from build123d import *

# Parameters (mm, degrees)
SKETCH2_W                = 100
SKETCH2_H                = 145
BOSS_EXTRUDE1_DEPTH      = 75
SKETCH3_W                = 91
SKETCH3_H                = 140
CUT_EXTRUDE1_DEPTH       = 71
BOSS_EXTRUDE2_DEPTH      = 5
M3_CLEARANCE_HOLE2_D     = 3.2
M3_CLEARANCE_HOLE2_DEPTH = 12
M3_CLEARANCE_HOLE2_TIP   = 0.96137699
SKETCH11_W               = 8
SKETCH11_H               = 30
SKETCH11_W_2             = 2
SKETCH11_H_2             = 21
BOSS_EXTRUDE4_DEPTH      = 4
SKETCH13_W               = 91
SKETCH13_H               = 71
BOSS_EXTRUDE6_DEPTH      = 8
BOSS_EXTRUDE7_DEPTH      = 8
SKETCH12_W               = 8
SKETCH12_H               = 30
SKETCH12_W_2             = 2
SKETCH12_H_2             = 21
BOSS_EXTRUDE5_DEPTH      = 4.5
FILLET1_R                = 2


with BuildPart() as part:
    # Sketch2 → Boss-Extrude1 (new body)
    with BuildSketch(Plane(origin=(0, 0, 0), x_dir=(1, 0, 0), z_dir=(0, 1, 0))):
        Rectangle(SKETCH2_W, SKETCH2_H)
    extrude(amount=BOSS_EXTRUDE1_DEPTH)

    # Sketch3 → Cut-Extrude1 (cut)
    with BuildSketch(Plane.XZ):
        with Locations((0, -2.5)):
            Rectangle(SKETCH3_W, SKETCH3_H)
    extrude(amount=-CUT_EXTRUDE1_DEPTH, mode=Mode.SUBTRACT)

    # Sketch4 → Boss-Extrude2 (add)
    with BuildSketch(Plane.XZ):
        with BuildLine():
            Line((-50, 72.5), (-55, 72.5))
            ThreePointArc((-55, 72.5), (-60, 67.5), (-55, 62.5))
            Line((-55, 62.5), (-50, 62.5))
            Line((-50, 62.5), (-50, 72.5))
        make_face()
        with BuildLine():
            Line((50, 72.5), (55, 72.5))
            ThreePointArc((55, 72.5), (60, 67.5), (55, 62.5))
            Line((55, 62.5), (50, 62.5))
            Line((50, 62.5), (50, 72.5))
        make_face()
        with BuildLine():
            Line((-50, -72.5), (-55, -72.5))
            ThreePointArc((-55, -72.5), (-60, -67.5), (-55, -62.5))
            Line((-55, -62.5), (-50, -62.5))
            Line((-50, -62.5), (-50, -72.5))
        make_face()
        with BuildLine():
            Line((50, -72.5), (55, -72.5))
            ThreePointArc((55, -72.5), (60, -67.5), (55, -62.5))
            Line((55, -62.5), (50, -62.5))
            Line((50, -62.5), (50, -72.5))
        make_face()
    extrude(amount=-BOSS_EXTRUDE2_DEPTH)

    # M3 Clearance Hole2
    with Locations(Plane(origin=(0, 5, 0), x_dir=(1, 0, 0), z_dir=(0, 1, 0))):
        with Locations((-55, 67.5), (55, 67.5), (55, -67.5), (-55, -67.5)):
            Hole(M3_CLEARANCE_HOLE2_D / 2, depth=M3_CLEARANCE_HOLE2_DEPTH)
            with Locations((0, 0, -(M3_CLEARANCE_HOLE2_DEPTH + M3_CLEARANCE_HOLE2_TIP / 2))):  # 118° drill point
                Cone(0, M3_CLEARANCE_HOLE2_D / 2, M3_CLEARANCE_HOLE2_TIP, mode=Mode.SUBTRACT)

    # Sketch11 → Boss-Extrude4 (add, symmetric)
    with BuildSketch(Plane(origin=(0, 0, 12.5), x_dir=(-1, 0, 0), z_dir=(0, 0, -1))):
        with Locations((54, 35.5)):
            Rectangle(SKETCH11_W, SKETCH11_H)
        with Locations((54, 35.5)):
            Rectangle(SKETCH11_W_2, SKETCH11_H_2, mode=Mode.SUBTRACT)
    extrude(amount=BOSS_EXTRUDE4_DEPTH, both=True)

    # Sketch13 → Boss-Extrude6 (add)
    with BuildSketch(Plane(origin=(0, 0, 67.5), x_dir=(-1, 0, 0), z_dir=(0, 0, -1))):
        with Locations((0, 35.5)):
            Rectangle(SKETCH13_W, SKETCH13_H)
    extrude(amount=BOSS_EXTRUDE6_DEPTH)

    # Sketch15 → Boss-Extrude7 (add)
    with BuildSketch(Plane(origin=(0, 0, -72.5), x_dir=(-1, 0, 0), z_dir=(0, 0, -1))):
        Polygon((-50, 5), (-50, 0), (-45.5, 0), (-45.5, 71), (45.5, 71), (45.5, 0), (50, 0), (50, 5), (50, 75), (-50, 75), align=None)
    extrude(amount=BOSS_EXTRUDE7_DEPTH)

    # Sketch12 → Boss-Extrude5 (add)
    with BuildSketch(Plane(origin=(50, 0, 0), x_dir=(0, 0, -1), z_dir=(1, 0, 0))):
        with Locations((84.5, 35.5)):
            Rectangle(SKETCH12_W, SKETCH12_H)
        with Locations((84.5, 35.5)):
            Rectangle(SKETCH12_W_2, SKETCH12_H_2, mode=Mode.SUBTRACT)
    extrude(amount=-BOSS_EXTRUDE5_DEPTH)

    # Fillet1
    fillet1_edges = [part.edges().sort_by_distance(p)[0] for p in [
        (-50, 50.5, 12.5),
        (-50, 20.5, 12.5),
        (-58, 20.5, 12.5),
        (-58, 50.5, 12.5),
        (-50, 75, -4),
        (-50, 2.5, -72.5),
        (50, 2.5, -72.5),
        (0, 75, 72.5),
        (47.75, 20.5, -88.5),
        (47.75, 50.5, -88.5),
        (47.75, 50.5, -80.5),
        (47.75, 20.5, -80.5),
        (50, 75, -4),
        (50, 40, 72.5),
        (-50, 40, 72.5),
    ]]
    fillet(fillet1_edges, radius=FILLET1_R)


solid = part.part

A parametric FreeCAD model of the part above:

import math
import FreeCAD as App
import Part
import Sketcher
from FreeCAD import Vector
Q = App.Units.Quantity


def edges_at(feature, points):
    """Names of the edges that pass closest to the given points."""
    edges = feature.Shape.Edges
    near = lambda p: min(range(len(edges)), key=lambda i: edges[i].distToShape(Part.Vertex(*p))[0])
    return sorted({f"Edge{near(p) + 1}" for p in points})


def add_polygon(sketch, points):
    """Adds a closed chain of lines whose ends are joined by coincident constraints."""
    first, n = sketch.GeometryCount, len(points)
    for a, b in zip(points, points[1:] + points[:1]):
        sketch.addGeometry(Part.LineSegment(App.Vector(*a, 0), App.Vector(*b, 0)), False)
    for i in range(n):
        sketch.addConstraint(Sketcher.Constraint("Coincident", first + i, 2, first + (i + 1) % n, 1))

doc = App.newDocument("Part")
body = doc.addObject("PartDesign::Body", "Body")

# Sketch on XZ plane
sketch1 = body.newObject("Sketcher::SketchObject", "Sketch")
sketch1.AttachmentSupport = (doc.getObject("XZ_Plane"), [""])
sketch1.MapMode = "FlatFace"
add_polygon(sketch1, [(-50, -72), (-50, 72), (50, 72), (50, -72)])  # lines 0-3
sketch1.addConstraint(Sketcher.Constraint("Vertical", 0))
sketch1.addConstraint(Sketcher.Constraint("Horizontal", 1))
sketch1.addConstraint(Sketcher.Constraint("Vertical", 2))
sketch1.addConstraint(Sketcher.Constraint("Horizontal", 3))
sketch1.addConstraint(Sketcher.Constraint("Symmetric", 0, 2, 2, 2, -1, 1))
sketch1.addConstraint(Sketcher.Constraint("DistanceX", 1, 1, 1, 2, Q("100 mm")))
sketch1.addConstraint(Sketcher.Constraint("DistanceY", 0, 1, 0, 2, Q("145 mm")))
pad1 = body.newObject("PartDesign::Pad", "Pad")
pad1.Profile = sketch1
pad1.Length = 75
pad1.Reversed = True

# Sketch on XZ plane
sketch2 = body.newObject("Sketcher::SketchObject", "Sketch001")
sketch2.AttachmentSupport = (doc.getObject("XZ_Plane"), [""])
sketch2.MapMode = "FlatFace"
add_polygon(sketch2, [(-46, 68), (-46, -72), (46, -72), (46, 68)])  # lines 0-3
sketch2.addConstraint(Sketcher.Constraint("Vertical", 0))
sketch2.addConstraint(Sketcher.Constraint("Horizontal", 1))
sketch2.addConstraint(Sketcher.Constraint("Vertical", 2))
sketch2.addConstraint(Sketcher.Constraint("Horizontal", 3))
sketch2.addConstraint(Sketcher.Constraint("DistanceX", 1, 1, 1, 2, Q("91 mm")))
sketch2.addConstraint(Sketcher.Constraint("DistanceY", 0, 2, 0, 1, Q("140 mm")))
sketch2.addConstraint(Sketcher.Constraint("DistanceX", 0, 2, -1, 1, Q("45.5 mm")))
sketch2.addConstraint(Sketcher.Constraint("DistanceY", 0, 2, -1, 1, Q("72.5 mm")))
pocket1 = body.newObject("PartDesign::Pocket", "Pocket")
pocket1.Profile = sketch2
pocket1.Length = 71

# Sketch on XZ plane
sketch3 = body.newObject("Sketcher::SketchObject", "Sketch002")
sketch3.AttachmentSupport = (doc.getObject("XZ_Plane"), [""])
sketch3.MapMode = "FlatFace"
sketch3.addGeometry(Part.LineSegment(Vector(-50, 72, 0), Vector(-55, 72, 0)), False)
sketch3.addGeometry(Part.ArcOfCircle(Part.Circle(Vector(-55, 68, 0), Vector(0, 0, 1), 5), math.radians(90), math.radians(270)), False)
sketch3.addGeometry(Part.LineSegment(Vector(-55, 62, 0), Vector(-50, 62, 0)), False)
sketch3.addGeometry(Part.LineSegment(Vector(-50, 62, 0), Vector(-50, 72, 0)), False)
sketch3.addGeometry(Part.LineSegment(Vector(55, 72, 0), Vector(50, 72, 0)), False)
sketch3.addGeometry(Part.LineSegment(Vector(50, 72, 0), Vector(50, 62, 0)), False)
sketch3.addGeometry(Part.LineSegment(Vector(50, 62, 0), Vector(55, 62, 0)), False)
sketch3.addGeometry(Part.ArcOfCircle(Part.Circle(Vector(55, 68, 0), Vector(0, 0, 1), 5), math.radians(-90), math.radians(90)), False)
sketch3.addGeometry(Part.LineSegment(Vector(-55, -72, 0), Vector(-50, -72, 0)), False)
sketch3.addGeometry(Part.LineSegment(Vector(-50, -72, 0), Vector(-50, -62, 0)), False)
sketch3.addGeometry(Part.LineSegment(Vector(-50, -62, 0), Vector(-55, -62, 0)), False)
sketch3.addGeometry(Part.ArcOfCircle(Part.Circle(Vector(-55, -68, 0), Vector(0, 0, 1), 5), math.radians(90), math.radians(270)), False)
sketch3.addGeometry(Part.LineSegment(Vector(50, -72, 0), Vector(55, -72, 0)), False)
sketch3.addGeometry(Part.ArcOfCircle(Part.Circle(Vector(55, -68, 0), Vector(0, 0, 1), 5), math.radians(-90), math.radians(90)), False)
sketch3.addGeometry(Part.LineSegment(Vector(55, -62, 0), Vector(50, -62, 0)), False)
sketch3.addGeometry(Part.LineSegment(Vector(50, -62, 0), Vector(50, -72, 0)), False)
sketch3.addConstraint(Sketcher.Constraint("Tangent", 0, 2, 1, 1))
sketch3.addConstraint(Sketcher.Constraint("Tangent", 1, 2, 2, 1))
sketch3.addConstraint(Sketcher.Constraint("Coincident", 2, 2, 3, 1))
sketch3.addConstraint(Sketcher.Constraint("Coincident", 3, 2, 0, 1))
sketch3.addConstraint(Sketcher.Constraint("Coincident", 4, 2, 5, 1))
sketch3.addConstraint(Sketcher.Constraint("Coincident", 5, 2, 6, 1))
sketch3.addConstraint(Sketcher.Constraint("Tangent", 6, 2, 7, 1))
sketch3.addConstraint(Sketcher.Constraint("Tangent", 7, 2, 4, 1))
sketch3.addConstraint(Sketcher.Constraint("Coincident", 8, 2, 9, 1))
sketch3.addConstraint(Sketcher.Constraint("Coincident", 9, 2, 10, 1))
sketch3.addConstraint(Sketcher.Constraint("Tangent", 10, 2, 11, 1))
sketch3.addConstraint(Sketcher.Constraint("Tangent", 11, 2, 8, 1))
sketch3.addConstraint(Sketcher.Constraint("Tangent", 12, 2, 13, 1))
sketch3.addConstraint(Sketcher.Constraint("Tangent", 13, 2, 14, 1))
sketch3.addConstraint(Sketcher.Constraint("Coincident", 14, 2, 15, 1))
sketch3.addConstraint(Sketcher.Constraint("Coincident", 15, 2, 12, 1))
sketch3.addConstraint(Sketcher.Constraint("Horizontal", 0))
sketch3.addConstraint(Sketcher.Constraint("Horizontal", 2))
sketch3.addConstraint(Sketcher.Constraint("Vertical", 3))
sketch3.addConstraint(Sketcher.Constraint("Horizontal", 4))
sketch3.addConstraint(Sketcher.Constraint("Vertical", 5))
sketch3.addConstraint(Sketcher.Constraint("Horizontal", 6))
sketch3.addConstraint(Sketcher.Constraint("Horizontal", 8))
sketch3.addConstraint(Sketcher.Constraint("Vertical", 9))
sketch3.addConstraint(Sketcher.Constraint("Horizontal", 10))
sketch3.addConstraint(Sketcher.Constraint("Horizontal", 12))
sketch3.addConstraint(Sketcher.Constraint("Horizontal", 14))
sketch3.addConstraint(Sketcher.Constraint("Vertical", 15))
sketch3.addConstraint(Sketcher.Constraint("Equal", 1, 7))
sketch3.addConstraint(Sketcher.Constraint("Equal", 7, 11))
sketch3.addConstraint(Sketcher.Constraint("Equal", 11, 13))
sketch3.addConstraint(Sketcher.Constraint("Symmetric", 7, 3, 11, 3, -1, 1))
sketch3.addConstraint(Sketcher.Constraint("Symmetric", 1, 3, 13, 3, -1, 1))
sketch3.addConstraint(Sketcher.Constraint("Symmetric", 1, 3, 7, 3, -2))
sketch3.addConstraint(Sketcher.Constraint("Vertical", 3, 2, 8, 2))
sketch3.addConstraint(Sketcher.Constraint("Vertical", 5, 2, 14, 2))
sketch3.addConstraint(Sketcher.Constraint("Equal", 2, 4))
sketch3.addConstraint(Sketcher.Constraint("Radius", 1, Q("5 mm")))
sketch3.addConstraint(Sketcher.Constraint("DistanceX", 0, 2, 0, 1, Q("5 mm")))
sketch3.addConstraint(Sketcher.Constraint("DistanceX", 1, 3, -1, 1, Q("55 mm")))
sketch3.addConstraint(Sketcher.Constraint("DistanceY", 11, 3, 1, 3, Q("135 mm")))
pad2 = body.newObject("PartDesign::Pad", "Pad001")
pad2.Profile = sketch3
pad2.Length = 5
pad2.Reversed = True

# Sketch on XZ plane
sketch4 = body.newObject("Sketcher::SketchObject", "Sketch003")
sketch4.AttachmentSupport = (doc.getObject("XZ_Plane"), [""])
sketch4.MapMode = "FlatFace"
sketch4.AttachmentOffset = App.Placement(Vector(0, 0, -5), App.Rotation())
sketch4.addGeometry(Part.Circle(Vector(-55, -67.5, 0), Vector(0, 0, 1), 1.6), False)
sketch4.addGeometry(Part.Circle(Vector(55, -67.5, 0), Vector(0, 0, 1), 1.6), False)
sketch4.addGeometry(Part.Circle(Vector(55, 67.5, 0), Vector(0, 0, 1), 1.6), False)
sketch4.addGeometry(Part.Circle(Vector(-55, 67.5, 0), Vector(0, 0, 1), 1.6), False)
sketch4.addConstraint(Sketcher.Constraint("Equal", 0, 1))
sketch4.addConstraint(Sketcher.Constraint("Equal", 1, 2))
sketch4.addConstraint(Sketcher.Constraint("Equal", 2, 3))
sketch4.addConstraint(Sketcher.Constraint("Symmetric", 0, 3, 2, 3, -1, 1))
sketch4.addConstraint(Sketcher.Constraint("Symmetric", 1, 3, 3, 3, -1, 1))
sketch4.addConstraint(Sketcher.Constraint("Symmetric", 0, 3, 1, 3, -2))
sketch4.addConstraint(Sketcher.Constraint("Diameter", 0, Q("3.2 mm")))
sketch4.addConstraint(Sketcher.Constraint("DistanceX", 0, 3, -1, 1, Q("55 mm")))
sketch4.addConstraint(Sketcher.Constraint("DistanceY", 1, 3, 2, 3, Q("135 mm")))
doc.recompute()
hole = body.newObject("PartDesign::Hole", "Hole")
hole.Profile = sketch4
hole.ThreadType = "None"
hole.Diameter = 3.2
hole.DepthType = "Dimension"
hole.Depth = 12
hole.DrillPoint = "Angled"
hole.DrillPointAngle = 118
hole.Reversed = True

# Sketch on XY plane
sketch5 = body.newObject("Sketcher::SketchObject", "Sketch004")
sketch5.AttachmentSupport = (doc.getObject("XY_Plane"), [""])
sketch5.MapMode = "FlatFace"
sketch5.AttachmentOffset = App.Placement(Vector(0, 0, 12.5), App.Rotation())
add_polygon(sketch5, [(-50, 50.5), (-50, 20.5), (-58, 20.5), (-58, 50.5)])  # lines 0-3
add_polygon(sketch5, [(-55, 25), (-53, 25), (-53, 46), (-55, 46)])  # lines 4-7
sketch5.addConstraint(Sketcher.Constraint("Vertical", 0))
sketch5.addConstraint(Sketcher.Constraint("Horizontal", 1))
sketch5.addConstraint(Sketcher.Constraint("Vertical", 2))
sketch5.addConstraint(Sketcher.Constraint("Horizontal", 3))
sketch5.addConstraint(Sketcher.Constraint("Horizontal", 4))
sketch5.addConstraint(Sketcher.Constraint("Vertical", 5))
sketch5.addConstraint(Sketcher.Constraint("Horizontal", 6))
sketch5.addConstraint(Sketcher.Constraint("Vertical", 7))
sketch5.addConstraint(Sketcher.Constraint("DistanceX", 1, 2, 1, 1, Q("8 mm")))
sketch5.addConstraint(Sketcher.Constraint("DistanceX", 4, 1, 4, 2, Q("2 mm")))
sketch5.addConstraint(Sketcher.Constraint("DistanceY", 0, 2, 0, 1, Q("30 mm")))
sketch5.addConstraint(Sketcher.Constraint("DistanceY", 5, 1, 5, 2, Q("21 mm")))
sketch5.addConstraint(Sketcher.Constraint("DistanceX", 0, 2, -1, 1, Q("50 mm")))
sketch5.addConstraint(Sketcher.Constraint("DistanceX", 4, 2, -1, 1, Q("53 mm")))
sketch5.addConstraint(Sketcher.Constraint("DistanceY", -1, 1, 4, 2, Q("25 mm")))
sketch5.addConstraint(Sketcher.Constraint("DistanceY", -1, 1, 0, 2, Q("20.5 mm")))
pad3 = body.newObject("PartDesign::Pad", "Pad002")
pad3.Profile = sketch5
pad3.Length = 8
pad3.Midplane = True

# Sketch on XY plane
sketch6 = body.newObject("Sketcher::SketchObject", "Sketch005")
sketch6.AttachmentSupport = (doc.getObject("XY_Plane"), [""])
sketch6.MapMode = "FlatFace"
sketch6.AttachmentOffset = App.Placement(Vector(0, 0, 67.5), App.Rotation())
add_polygon(sketch6, [(46, 71), (46, 0), (-46, 0), (-46, 71)])  # lines 0-3
sketch6.addConstraint(Sketcher.Constraint("Vertical", 0))
sketch6.addConstraint(Sketcher.Constraint("Horizontal", 1))
sketch6.addConstraint(Sketcher.Constraint("Vertical", 2))
sketch6.addConstraint(Sketcher.Constraint("Horizontal", 3))
sketch6.addConstraint(Sketcher.Constraint("Symmetric", 0, 2, 1, 2, -1, 1))
sketch6.addConstraint(Sketcher.Constraint("DistanceX", 1, 2, 1, 1, Q("91 mm")))
sketch6.addConstraint(Sketcher.Constraint("DistanceY", 0, 2, 0, 1, Q("71 mm")))
pad4 = body.newObject("PartDesign::Pad", "Pad003")
pad4.Profile = sketch6
pad4.Length = 8
pad4.Reversed = True

# Sketch on XY plane
sketch7 = body.newObject("Sketcher::SketchObject", "Sketch006")
sketch7.AttachmentSupport = (doc.getObject("XY_Plane"), [""])
sketch7.MapMode = "FlatFace"
sketch7.AttachmentOffset = App.Placement(Vector(0, 0, -72.5), App.Rotation())
add_polygon(sketch7, [(50, 0), (45.5, 0), (45.5, 71), (-45.5, 71), (-45.5, 0), (-50, 0), (-50, 75), (50, 75)])  # lines 0-7
sketch7.addConstraint(Sketcher.Constraint("Horizontal", 0))
sketch7.addConstraint(Sketcher.Constraint("Vertical", 1))
sketch7.addConstraint(Sketcher.Constraint("Horizontal", 2))
sketch7.addConstraint(Sketcher.Constraint("Vertical", 3))
sketch7.addConstraint(Sketcher.Constraint("Horizontal", 4))
sketch7.addConstraint(Sketcher.Constraint("Vertical", 5))
sketch7.addConstraint(Sketcher.Constraint("Horizontal", 6))
sketch7.addConstraint(Sketcher.Constraint("Vertical", 7))
sketch7.addConstraint(Sketcher.Constraint("Symmetric", 0, 2, 3, 2, -1, 1))
sketch7.addConstraint(Sketcher.Constraint("Symmetric", 4, 2, 7, 2, -2))
sketch7.addConstraint(Sketcher.Constraint("DistanceX", 2, 2, 2, 1, Q("91 mm")))
sketch7.addConstraint(Sketcher.Constraint("DistanceX", 6, 1, 6, 2, Q("100 mm")))
sketch7.addConstraint(Sketcher.Constraint("DistanceY", 1, 1, 1, 2, Q("71 mm")))
sketch7.addConstraint(Sketcher.Constraint("DistanceY", 5, 1, 5, 2, Q("75 mm")))
pad5 = body.newObject("PartDesign::Pad", "Pad004")
pad5.Profile = sketch7
pad5.Length = 8
pad5.Reversed = True

# Sketch on YZ plane
sketch8 = body.newObject("Sketcher::SketchObject", "Sketch007")
sketch8.AttachmentSupport = (doc.getObject("YZ_Plane"), [""])
sketch8.MapMode = "FlatFace"
sketch8.AttachmentOffset = App.Placement(Vector(0, 0, 50), App.Rotation())
add_polygon(sketch8, [(50.5, -80.5), (20.5, -80.5), (20.5, -88.5), (50.5, -88.5)])  # lines 0-3
add_polygon(sketch8, [(25, -85.5), (25, -83.5), (46, -83.5), (46, -85.5)])  # lines 4-7
sketch8.addConstraint(Sketcher.Constraint("Horizontal", 0))
sketch8.addConstraint(Sketcher.Constraint("Vertical", 1))
sketch8.addConstraint(Sketcher.Constraint("Horizontal", 2))
sketch8.addConstraint(Sketcher.Constraint("Vertical", 3))
sketch8.addConstraint(Sketcher.Constraint("Vertical", 4))
sketch8.addConstraint(Sketcher.Constraint("Horizontal", 5))
sketch8.addConstraint(Sketcher.Constraint("Vertical", 6))
sketch8.addConstraint(Sketcher.Constraint("Horizontal", 7))
sketch8.addConstraint(Sketcher.Constraint("DistanceX", 0, 2, 0, 1, Q("30 mm")))
sketch8.addConstraint(Sketcher.Constraint("DistanceX", 5, 1, 5, 2, Q("21 mm")))
sketch8.addConstraint(Sketcher.Constraint("DistanceY", 1, 2, 1, 1, Q("8 mm")))
sketch8.addConstraint(Sketcher.Constraint("DistanceY", 4, 1, 4, 2, Q("2 mm")))
sketch8.addConstraint(Sketcher.Constraint("DistanceX", -1, 1, 4, 2, Q("25 mm")))
sketch8.addConstraint(Sketcher.Constraint("DistanceY", 4, 2, 0, 2, Q("3 mm")))
sketch8.addConstraint(Sketcher.Constraint("DistanceX", -1, 1, 0, 2, Q("20.5 mm")))
sketch8.addConstraint(Sketcher.Constraint("DistanceY", 0, 2, -1, 1, Q("80.5 mm")))
pad6 = body.newObject("PartDesign::Pad", "Pad005")
pad6.Profile = sketch8
pad6.Length = 4.5
pad6.Reversed = True
doc.recompute()

fillet = body.newObject("PartDesign::Fillet", "Fillet")
fillet.Base = (pad6, edges_at(pad6, [
    (-50, 50.5, 12.5),
    (-50, 20.5, 12.5),
    (-58, 20.5, 12.5),
    (-58, 50.5, 12.5),
    (-50, 75, -4),
    (-50, 2.5, -72.5),
    (50, 2.5, -72.5),
    (0, 75, 72.5),
    (47.75, 20.5, -88.5),
    (47.75, 50.5, -88.5),
    (47.75, 50.5, -80.5),
    (47.75, 20.5, -80.5),
    (50, 75, -4),
    (50, 40, 72.5),
    (-50, 40, 72.5),
]))
fillet.Radius = 2

doc.recompute()
